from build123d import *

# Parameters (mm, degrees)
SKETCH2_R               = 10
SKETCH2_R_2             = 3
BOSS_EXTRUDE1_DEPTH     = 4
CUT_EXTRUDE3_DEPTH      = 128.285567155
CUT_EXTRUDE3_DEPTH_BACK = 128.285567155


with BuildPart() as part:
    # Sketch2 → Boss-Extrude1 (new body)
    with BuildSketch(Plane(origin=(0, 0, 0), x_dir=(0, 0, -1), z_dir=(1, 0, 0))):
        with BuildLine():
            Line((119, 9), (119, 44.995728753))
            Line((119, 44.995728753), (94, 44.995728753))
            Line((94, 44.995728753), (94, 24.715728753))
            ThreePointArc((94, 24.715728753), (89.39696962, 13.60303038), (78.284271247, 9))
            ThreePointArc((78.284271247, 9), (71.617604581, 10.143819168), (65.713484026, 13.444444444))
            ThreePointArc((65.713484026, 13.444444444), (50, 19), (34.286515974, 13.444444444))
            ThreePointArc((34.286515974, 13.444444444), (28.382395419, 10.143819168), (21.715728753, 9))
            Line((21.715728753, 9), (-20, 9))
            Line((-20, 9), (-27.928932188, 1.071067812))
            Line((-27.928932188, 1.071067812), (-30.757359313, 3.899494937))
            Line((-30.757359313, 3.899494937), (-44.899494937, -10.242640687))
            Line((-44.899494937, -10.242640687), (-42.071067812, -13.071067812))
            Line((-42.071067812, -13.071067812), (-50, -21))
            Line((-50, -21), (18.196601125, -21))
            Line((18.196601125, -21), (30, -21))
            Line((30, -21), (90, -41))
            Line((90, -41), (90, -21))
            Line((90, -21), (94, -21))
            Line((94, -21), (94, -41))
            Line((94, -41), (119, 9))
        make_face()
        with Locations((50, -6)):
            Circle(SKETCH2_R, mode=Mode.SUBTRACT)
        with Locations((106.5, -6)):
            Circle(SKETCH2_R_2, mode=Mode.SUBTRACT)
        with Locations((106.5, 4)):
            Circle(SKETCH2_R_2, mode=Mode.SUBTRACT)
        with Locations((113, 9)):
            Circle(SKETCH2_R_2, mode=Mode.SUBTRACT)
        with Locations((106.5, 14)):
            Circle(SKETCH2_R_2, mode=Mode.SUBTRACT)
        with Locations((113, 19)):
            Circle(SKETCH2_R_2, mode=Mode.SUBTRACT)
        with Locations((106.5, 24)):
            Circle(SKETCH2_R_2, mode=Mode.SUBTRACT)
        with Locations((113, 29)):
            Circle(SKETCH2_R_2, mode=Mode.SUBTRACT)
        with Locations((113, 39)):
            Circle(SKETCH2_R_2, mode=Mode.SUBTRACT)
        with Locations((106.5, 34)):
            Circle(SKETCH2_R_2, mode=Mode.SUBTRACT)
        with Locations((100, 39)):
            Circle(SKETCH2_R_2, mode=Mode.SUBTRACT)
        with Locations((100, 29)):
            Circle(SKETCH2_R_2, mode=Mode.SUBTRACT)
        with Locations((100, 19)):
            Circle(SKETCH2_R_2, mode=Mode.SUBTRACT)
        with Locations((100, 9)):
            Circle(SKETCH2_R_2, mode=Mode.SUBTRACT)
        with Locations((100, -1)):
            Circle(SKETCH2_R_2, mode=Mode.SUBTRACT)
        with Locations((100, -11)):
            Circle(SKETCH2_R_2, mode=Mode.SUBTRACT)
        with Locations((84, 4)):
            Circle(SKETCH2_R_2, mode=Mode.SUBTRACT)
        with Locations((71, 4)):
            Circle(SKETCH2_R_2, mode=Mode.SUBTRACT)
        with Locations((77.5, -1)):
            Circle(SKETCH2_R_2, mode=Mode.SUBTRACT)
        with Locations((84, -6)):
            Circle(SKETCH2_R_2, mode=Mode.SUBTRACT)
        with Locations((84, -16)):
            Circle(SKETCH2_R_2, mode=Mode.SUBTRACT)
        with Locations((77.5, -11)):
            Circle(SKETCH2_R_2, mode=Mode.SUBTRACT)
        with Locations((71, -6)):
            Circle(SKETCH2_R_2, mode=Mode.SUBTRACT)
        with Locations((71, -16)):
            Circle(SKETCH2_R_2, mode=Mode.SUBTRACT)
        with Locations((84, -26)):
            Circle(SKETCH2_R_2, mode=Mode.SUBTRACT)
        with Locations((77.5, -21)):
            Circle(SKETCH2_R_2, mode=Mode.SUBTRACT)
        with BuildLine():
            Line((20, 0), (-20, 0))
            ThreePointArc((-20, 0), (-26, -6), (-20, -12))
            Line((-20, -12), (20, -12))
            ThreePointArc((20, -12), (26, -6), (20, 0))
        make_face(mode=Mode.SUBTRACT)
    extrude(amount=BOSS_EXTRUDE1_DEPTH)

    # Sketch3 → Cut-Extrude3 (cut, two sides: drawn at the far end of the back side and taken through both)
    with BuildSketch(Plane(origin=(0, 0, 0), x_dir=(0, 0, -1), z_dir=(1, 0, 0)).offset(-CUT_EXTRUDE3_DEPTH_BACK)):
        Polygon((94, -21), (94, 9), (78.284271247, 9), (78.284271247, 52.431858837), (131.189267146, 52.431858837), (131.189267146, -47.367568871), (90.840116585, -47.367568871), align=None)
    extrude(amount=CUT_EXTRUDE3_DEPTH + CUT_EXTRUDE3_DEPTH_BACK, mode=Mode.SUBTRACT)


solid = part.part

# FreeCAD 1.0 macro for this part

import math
import FreeCAD as App
import Part
import Sketcher
from FreeCAD import Vector
Q = App.Units.Quantity


def add_polygon(sketch, points):
    """Adds a closed chain of lines whose ends are joined by coincident constraints."""
    first, n = sketch.GeometryCount, len(points)
    for a, b in zip(points, points[1:] + points[:1]):
        sketch.addGeometry(Part.LineSegment(App.Vector(*a, 0), App.Vector(*b, 0)), False)
    for i in range(n):
        sketch.addConstraint(Sketcher.Constraint("Coincident", first + i, 2, first + (i + 1) % n, 1))

doc = App.newDocument("Part")
params = doc.addObject("Spreadsheet::Sheet", "Params")
for row, (alias, value) in enumerate([
    ("sketch1_diameter", "6 mm"),
    ("sketch1_diameter2", "20 mm"),
    ("sketch1_radius", "20 mm"),
    ("sketch1_radius2", "25 mm"),
    ("sketch1_radius3", "6 mm"),
    ("pad1_length", "4 mm"),
    ("sketch2_width", "30 mm"),
], start=1):
    params.set(f"A{row}", alias)
    params.set(f"B{row}", "=" + value)
    params.setAlias(f"B{row}", alias)

body = doc.addObject("PartDesign::Body", "Body")

# Sketch on YZ plane
sketch1 = doc.addObject("Sketcher::SketchObject", "Sketch")
body.addObject(sketch1)
sketch1.AttachmentSupport = (doc.YZ_Plane, [""])
sketch1.MapMode = "FlatFace"
sketch1.addGeometry(Part.LineSegment(Vector(9, -119, 0), Vector(44.995729, -119, 0)), False)
sketch1.addGeometry(Part.LineSegment(Vector(44.995729, -119, 0), Vector(44.995729, -94, 0)), False)
sketch1.addGeometry(Part.LineSegment(Vector(44.995729, -94, 0), Vector(24.715729, -94, 0)), False)
sketch1.addGeometry(Part.ArcOfCircle(Part.Circle(Vector(24.715729, -78.284271, 0), Vector(0, 0, 1), 15.715729), math.radians(180), math.radians(270)), False)
sketch1.addGeometry(Part.ArcOfCircle(Part.Circle(Vector(29, -78.284271, 0), Vector(0, 0, 1), 20), math.radians(141.057559), math.radians(180)), False)
sketch1.addGeometry(Part.ArcOfCircle(Part.Circle(Vector(-6, -50, 0), Vector(0, 0, 1), 25), math.radians(-38.942441), math.radians(38.942441)), False)
sketch1.addGeometry(Part.ArcOfCircle(Part.Circle(Vector(29, -21.715729, 0), Vector(0, 0, 1), 20), math.radians(180), math.radians(218.942441)), False)
sketch1.addGeometry(Part.LineSegment(Vector(9, -21.715729, 0), Vector(9, 20, 0)), False)
sketch1.addGeometry(Part.LineSegment(Vector(9, 20, 0), Vector(1.071068, 27.928932, 0)), False)
sketch1.addGeometry(Part.LineSegment(Vector(1.071068, 27.928932, 0), Vector(3.899495, 30.757359, 0)), False)
sketch1.addGeometry(Part.LineSegment(Vector(3.899495, 30.757359, 0), Vector(-10.242641, 44.899495, 0)), False)
sketch1.addGeometry(Part.LineSegment(Vector(-10.242641, 44.899495, 0), Vector(-13.071068, 42.071068, 0)), False)
sketch1.addGeometry(Part.LineSegment(Vector(-13.071068, 42.071068, 0), Vector(-21, 50, 0)), False)
sketch1.addGeometry(Part.LineSegment(Vector(-21, 50, 0), Vector(-21, -30, 0)), False)
sketch1.addGeometry(Part.LineSegment(Vector(-21, -30, 0), Vector(-41, -90, 0)), False)
sketch1.addGeometry(Part.LineSegment(Vector(-41, -90, 0), Vector(-21, -90, 0)), False)
sketch1.addGeometry(Part.LineSegment(Vector(-21, -90, 0), Vector(-21, -94, 0)), False)
sketch1.addGeometry(Part.LineSegment(Vector(-21, -94, 0), Vector(-41, -94, 0)), False)
sketch1.addGeometry(Part.LineSegment(Vector(-41, -94, 0), Vector(9, -119, 0)), False)
sketch1.addGeometry(Part.LineSegment(Vector(0, 20, 0), Vector(0, -20, 0)), False)
sketch1.addGeometry(Part.ArcOfCircle(Part.Circle(Vector(-6, -20, 0), Vector(0, 0, 1), 6), math.radians(180), math.radians(360)), False)
sketch1.addGeometry(Part.LineSegment(Vector(-12, -20, 0), Vector(-12, 20, 0)), False)
sketch1.addGeometry(Part.ArcOfCircle(Part.Circle(Vector(-6, 20, 0), Vector(0, 0, 1), 6), math.radians(0), math.radians(180)), False)
sketch1.addGeometry(Part.Circle(Vector(-21, -77.5, 0), Vector(0, 0, 1), 3), False)
sketch1.addGeometry(Part.Circle(Vector(-16, -71, 0), Vector(0, 0, 1), 3), False)
sketch1.addGeometry(Part.Circle(Vector(-26, -84, 0), Vector(0, 0, 1), 3), False)
sketch1.addGeometry(Part.Circle(Vector(-16, -84, 0), Vector(0, 0, 1), 3), False)
sketch1.addGeometry(Part.Circle(Vector(-6, -50, 0), Vector(0, 0, 1), 10), False)
sketch1.addGeometry(Part.Circle(Vector(-11, -77.5, 0), Vector(0, 0, 1), 3), False)
sketch1.addGeometry(Part.Circle(Vector(-6, -71, 0), Vector(0, 0, 1), 3), False)
sketch1.addGeometry(Part.Circle(Vector(-1, -77.5, 0), Vector(0, 0, 1), 3), False)
sketch1.addGeometry(Part.Circle(Vector(4, -71, 0), Vector(0, 0, 1), 3), False)
sketch1.addGeometry(Part.Circle(Vector(-6, -84, 0), Vector(0, 0, 1), 3), False)
sketch1.addGeometry(Part.Circle(Vector(-11, -100, 0), Vector(0, 0, 1), 3), False)
sketch1.addGeometry(Part.Circle(Vector(-6, -106.5, 0), Vector(0, 0, 1), 3), False)
sketch1.addGeometry(Part.Circle(Vector(4, -84, 0), Vector(0, 0, 1), 3), False)
sketch1.addGeometry(Part.Circle(Vector(-1, -100, 0), Vector(0, 0, 1), 3), False)
sketch1.addGeometry(Part.Circle(Vector(4, -106.5, 0), Vector(0, 0, 1), 3), False)
sketch1.addGeometry(Part.Circle(Vector(9, -100, 0), Vector(0, 0, 1), 3), False)
sketch1.addGeometry(Part.Circle(Vector(9, -113, 0), Vector(0, 0, 1), 3), False)
sketch1.addGeometry(Part.Circle(Vector(14, -106.5, 0), Vector(0, 0, 1), 3), False)
sketch1.addGeometry(Part.Circle(Vector(19, -100, 0), Vector(0, 0, 1), 3), False)
sketch1.addGeometry(Part.Circle(Vector(19, -113, 0), Vector(0, 0, 1), 3), False)
sketch1.addGeometry(Part.Circle(Vector(24, -106.5, 0), Vector(0, 0, 1), 3), False)
sketch1.addGeometry(Part.Circle(Vector(29, -100, 0), Vector(0, 0, 1), 3), False)
sketch1.addGeometry(Part.Circle(Vector(29, -113, 0), Vector(0, 0, 1), 3), False)
sketch1.addGeometry(Part.Circle(Vector(34, -106.5, 0), Vector(0, 0, 1), 3), False)
sketch1.addGeometry(Part.Circle(Vector(39, -100, 0), Vector(0, 0, 1), 3), False)
sketch1.addGeometry(Part.Circle(Vector(39, -113, 0), Vector(0, 0, 1), 3), False)
sketch1.addConstraint(Sketcher.Constraint("Coincident", 0, 2, 1, 1))
sketch1.addConstraint(Sketcher.Constraint("Coincident", 1, 2, 2, 1))
sketch1.addConstraint(Sketcher.Constraint("Tangent", 2, 2, 3, 2))
sketch1.addConstraint(Sketcher.Constraint("Tangent", 3, 1, 4, 2))
sketch1.addConstraint(Sketcher.Constraint("Tangent", 4, 1, 5, 1))
sketch1.addConstraint(Sketcher.Constraint("Tangent", 5, 2, 6, 2))
sketch1.addConstraint(Sketcher.Constraint("Tangent", 6, 1, 7, 1))
sketch1.addConstraint(Sketcher.Constraint("Coincident", 7, 2, 8, 1))
sketch1.addConstraint(Sketcher.Constraint("Coincident", 8, 2, 9, 1))
sketch1.addConstraint(Sketcher.Constraint("Coincident", 9, 2, 10, 1))
sketch1.addConstraint(Sketcher.Constraint("Coincident", 10, 2, 11, 1))
sketch1.addConstraint(Sketcher.Constraint("Coincident", 11, 2, 12, 1))
sketch1.addConstraint(Sketcher.Constraint("Coincident", 12, 2, 13, 1))
sketch1.addConstraint(Sketcher.Constraint("Coincident", 13, 2, 14, 1))
sketch1.addConstraint(Sketcher.Constraint("Coincident", 14, 2, 15, 1))
sketch1.addConstraint(Sketcher.Constraint("Coincident", 15, 2, 16, 1))
sketch1.addConstraint(Sketcher.Constraint("Coincident", 16, 2, 17, 1))
sketch1.addConstraint(Sketcher.Constraint("Coincident", 17, 2, 18, 1))
sketch1.addConstraint(Sketcher.Constraint("Coincident", 18, 2, 0, 1))
sketch1.addConstraint(Sketcher.Constraint("Tangent", 19, 2, 20, 2))
sketch1.addConstraint(Sketcher.Constraint("Tangent", 20, 1, 21, 1))
sketch1.addConstraint(Sketcher.Constraint("Tangent", 21, 2, 22, 2))
sketch1.addConstraint(Sketcher.Constraint("Tangent", 22, 1, 19, 1))
sketch1.addConstraint(Sketcher.Constraint("Horizontal", 0))
sketch1.addConstraint(Sketcher.Constraint("Vertical", 1))
sketch1.addConstraint(Sketcher.Constraint("Horizontal", 2))
sketch1.addConstraint(Sketcher.Constraint("Vertical", 7))
sketch1.addConstraint(Sketcher.Constraint("Vertical", 13))
sketch1.addConstraint(Sketcher.Constraint("Horizontal", 15))
sketch1.addConstraint(Sketcher.Constraint("Vertical", 16))
sketch1.addConstraint(Sketcher.Constraint("Horizontal", 17))
sketch1.addConstraint(Sketcher.Constraint("Vertical", 19))
sketch1.addConstraint(Sketcher.Constraint("Vertical", 21))
sketch1.addConstraint(Sketcher.Constraint("Coincident", 27, 3, 5, 3))
sketch1.addConstraint(Sketcher.Constraint("Equal", 4, 6))
sketch1.addConstraint(Sketcher.Constraint("Equal", 23, 24))
sketch1.addConstraint(Sketcher.Constraint("Equal", 24, 25))
sketch1.addConstraint(Sketcher.Constraint("Equal", 25, 26))
sketch1.addConstraint(Sketcher.Constraint("Equal", 26, 28))
sketch1.addConstraint(Sketcher.Constraint("Equal", 28, 29))
sketch1.addConstraint(Sketcher.Constraint("Equal", 29, 30))
sketch1.addConstraint(Sketcher.Constraint("Equal", 30, 31))
sketch1.addConstraint(Sketcher.Constraint("Equal", 31, 32))
sketch1.addConstraint(Sketcher.Constraint("Equal", 32, 33))
sketch1.addConstraint(Sketcher.Constraint("Equal", 33, 34))
sketch1.addConstraint(Sketcher.Constraint("Equal", 34, 35))
sketch1.addConstraint(Sketcher.Constraint("Equal", 35, 36))
sketch1.addConstraint(Sketcher.Constraint("Equal", 36, 37))
sketch1.addConstraint(Sketcher.Constraint("Equal", 37, 38))
sketch1.addConstraint(Sketcher.Constraint("Equal", 38, 39))
sketch1.addConstraint(Sketcher.Constraint("Equal", 39, 40))
sketch1.addConstraint(Sketcher.Constraint("Equal", 40, 41))
sketch1.addConstraint(Sketcher.Constraint("Equal", 41, 42))
sketch1.addConstraint(Sketcher.Constraint("Equal", 42, 43))
sketch1.addConstraint(Sketcher.Constraint("Equal", 43, 44))
sketch1.addConstraint(Sketcher.Constraint("Equal", 44, 45))
sketch1.addConstraint(Sketcher.Constraint("Equal", 45, 46))
sketch1.addConstraint(Sketcher.Constraint("Equal", 46, 47))
sketch1.addConstraint(Sketcher.Constraint("Equal", 47, 48))
sketch1.addConstraint(Sketcher.Constraint("Symmetric", 19, 2, 22, 1, -1, 1))
sketch1.addConstraint(Sketcher.Constraint("Perpendicular", 8, 9))
sketch1.addConstraint(Sketcher.Constraint("Perpendicular", 9, 10))
sketch1.addConstraint(Sketcher.Constraint("Perpendicular", 10, 11))
sketch1.addConstraint(Sketcher.Constraint("Perpendicular", 11, 12))
sketch1.addConstraint(Sketcher.Constraint("Horizontal", 3, 3, 4, 3))
sketch1.addConstraint(Sketcher.Constraint("Horizontal", 25, 3, 26, 3))
sketch1.addConstraint(Sketcher.Constraint("Horizontal", 23, 3, 28, 3))
sketch1.addConstraint(Sketcher.Constraint("Horizontal", 24, 3, 29, 3))
sketch1.addConstraint(Sketcher.Constraint("Horizontal", 28, 3, 30, 3))
sketch1.addConstraint(Sketcher.Constraint("Horizontal", 29, 3, 31, 3))
sketch1.addConstraint(Sketcher.Constraint("Horizontal", 26, 3, 32, 3))
sketch1.addConstraint(Sketcher.Constraint("Horizontal", 32, 3, 35, 3))
sketch1.addConstraint(Sketcher.Constraint("Horizontal", 33, 3, 36, 3))
sketch1.addConstraint(Sketcher.Constraint("Horizontal", 34, 3, 37, 3))
sketch1.addConstraint(Sketcher.Constraint("Horizontal", 36, 3, 38, 3))
sketch1.addConstraint(Sketcher.Constraint("Horizontal", 37, 3, 40, 3))
sketch1.addConstraint(Sketcher.Constraint("Horizontal", 38, 3, 41, 3))
sketch1.addConstraint(Sketcher.Constraint("Horizontal", 39, 3, 42, 3))
sketch1.addConstraint(Sketcher.Constraint("Horizontal", 40, 3, 43, 3))
sketch1.addConstraint(Sketcher.Constraint("Horizontal", 41, 3, 44, 3))
sketch1.addConstraint(Sketcher.Constraint("Horizontal", 42, 3, 45, 3))
sketch1.addConstraint(Sketcher.Constraint("Horizontal", 43, 3, 46, 3))
sketch1.addConstraint(Sketcher.Constraint("Horizontal", 44, 3, 47, 3))
sketch1.addConstraint(Sketcher.Constraint("Horizontal", 45, 3, 48, 3))
sketch1.addConstraint(Sketcher.Constraint("Horizontal", 22, 3, 7, 2))
sketch1.addConstraint(Sketcher.Constraint("Horizontal", 2, 2, 16, 2))
sketch1.addConstraint(Sketcher.Constraint("Vertical", 4, 3, 6, 3))
sketch1.addConstraint(Sketcher.Constraint("Vertical", 5, 3, 20, 3))
sketch1.addConstraint(Sketcher.Constraint("Vertical", 24, 3, 26, 3))
sketch1.addConstraint(Sketcher.Constraint("Vertical", 27, 3, 29, 3))
sketch1.addConstraint(Sketcher.Constraint("Vertical", 29, 3, 32, 3))
sketch1.addConstraint(Sketcher.Constraint("Vertical", 28, 3, 33, 3))
sketch1.addConstraint(Sketcher.Constraint("Vertical", 32, 3, 34, 3))
sketch1.addConstraint(Sketcher.Constraint("Vertical", 31, 3, 35, 3))
sketch1.addConstraint(Sketcher.Constraint("Vertical", 30, 3, 36, 3))
sketch1.addConstraint(Sketcher.Constraint("Vertical", 35, 3, 37, 3))
sketch1.addConstraint(Sketcher.Constraint("Vertical", 38, 3, 39, 3))
sketch1.addConstraint(Sketcher.Constraint("Vertical", 41, 3, 42, 3))
sketch1.addConstraint(Sketcher.Constraint("Vertical", 6, 3, 44, 3))
sketch1.addConstraint(Sketcher.Constraint("Vertical", 44, 3, 45, 3))
sketch1.addConstraint(Sketcher.Constraint("Vertical", 47, 3, 48, 3))
sketch1.addConstraint(Sketcher.Constraint("Vertical", 39, 3, 3, 1))
sketch1.addConstraint(Sketcher.Constraint("Vertical", 23, 3, 12, 2))
sketch1.addConstraint(Sketcher.Constraint("Vertical", 13, 2, 15, 2))
sketch1.addConstraint(Sketcher.Constraint("Vertical", 14, 2, 17, 2))
sketch1.addConstraint(Sketcher.Constraint("Vertical", 7, 2, 18, 2))
sketch1.addConstraint(Sketcher.Constraint("Equal", 9, 11))
sketch1.addConstraint(Sketcher.Constraint("Equal", 8, 12))
sketch1.addConstraint(Sketcher.Constraint("Diameter", 23, 6.0))
sketch1.addConstraint(Sketcher.Constraint("Diameter", 27, 20.0))
sketch1.addConstraint(Sketcher.Constraint("Radius", 4, 20.0))
sketch1.addConstraint(Sketcher.Constraint("Radius", 5, 25.0))
sketch1.addConstraint(Sketcher.Constraint("Radius", 20, 6.0))
sketch1.addConstraint(Sketcher.Constraint("DistanceX", 15, 1, 15, 2, 20.0))
sketch1.addConstraint(Sketcher.Constraint("DistanceY", 1, 1, 1, 2, 25.0))
sketch1.addConstraint(Sketcher.Constraint("DistanceY", 13, 2, 13, 1, 80.0))
sketch1.addConstraint(Sketcher.Constraint("DistanceY", 16, 2, 16, 1, 4.0))
sketch1.addConstraint(Sketcher.Constraint("DistanceY", 19, 2, 19, 1, 40.0))
sketch1.addConstraint(Sketcher.Constraint("Angle", 8, Q("135 deg")))
sketch1.addConstraint(Sketcher.Constraint("Distance", 9, 4.0))
sketch1.addConstraint(Sketcher.Constraint("Distance", 10, 20.0))
sketch1.addConstraint(Sketcher.Constraint("DistanceX", -1, 1, 4, 3, 29.0))
sketch1.addConstraint(Sketcher.Constraint("DistanceY", 5, 3, -1, 1, 50.0))
sketch1.addConstraint(Sketcher.Constraint("DistanceX", 23, 3, -1, 1, 21.0))
sketch1.addConstraint(Sketcher.Constraint("DistanceX", 24, 3, -1, 1, 16.0))
sketch1.addConstraint(Sketcher.Constraint("DistanceY", 24, 3, -1, 1, 71.0))
sketch1.addConstraint(Sketcher.Constraint("DistanceX", 25, 3, -1, 1, 26.0))
sketch1.addConstraint(Sketcher.Constraint("DistanceY", 25, 3, -1, 1, 84.0))
sketch1.addConstraint(Sketcher.Constraint("DistanceX", 28, 3, -1, 1, 11.0))
sketch1.addConstraint(Sketcher.Constraint("DistanceX", 30, 3, -1, 1, 1.0))
sketch1.addConstraint(Sketcher.Constraint("DistanceX", -1, 1, 31, 3, 4.0))
sketch1.addConstraint(Sketcher.Constraint("DistanceY", 33, 3, -1, 1, 100.0))
sketch1.addConstraint(Sketcher.Constraint("DistanceY", 39, 3, -1, 1, 113.0))
sketch1.addConstraint(Sketcher.Constraint("DistanceX", -1, 1, 40, 3, 14.0))
sketch1.addConstraint(Sketcher.Constraint("DistanceX", -1, 1, 41, 3, 19.0))
sketch1.addConstraint(Sketcher.Constraint("DistanceX", -1, 1, 43, 3, 24.0))
sketch1.addConstraint(Sketcher.Constraint("DistanceX", -1, 1, 46, 3, 34.0))
sketch1.addConstraint(Sketcher.Constraint("DistanceX", -1, 1, 47, 3, 39.0))
sketch1.addConstraint(Sketcher.Constraint("DistanceY", 0, 2, -1, 1, 119.0))
sketch1.addConstraint(Sketcher.Constraint("DistanceY", 34, 3, 28, 3, 29.0))
sketch1.addConstraint(Sketcher.Constraint("DistanceX", 2, 2, 2, 1, 20.28))
sketch1.addConstraint(Sketcher.Constraint("DistanceY", 23, 3, -1, 1, 77.5))
sketch1.setExpression("Constraints[108]", "Params.sketch1_diameter")
sketch1.setExpression("Constraints[109]", "Params.sketch1_diameter2")
sketch1.setExpression("Constraints[110]", "Params.sketch1_radius")
sketch1.setExpression("Constraints[111]", "Params.sketch1_radius2")
sketch1.setExpression("Constraints[112]", "Params.sketch1_radius3")
pad1 = doc.addObject("PartDesign::Pad", "Pad")
body.addObject(pad1)
pad1.Profile = sketch1
pad1.setExpression("Length", "Params.pad1_length")

# Sketch on YZ plane
sketch2 = doc.addObject("Sketcher::SketchObject", "Sketch001")
body.addObject(sketch2)
sketch2.AttachmentSupport = (doc.YZ_Plane, [""])
sketch2.MapMode = "FlatFace"
add_polygon(sketch2, [(9, -94), (-21, -94), (-47.367569, -90.840117), (-47.367569, -131.189267), (52.431859, -131.189267), (52.431859, -78.284271), (9, -78.284271)])  # lines 0-6
sketch2.addConstraint(Sketcher.Constraint("Horizontal", 0))
sketch2.addConstraint(Sketcher.Constraint("Vertical", 2))
sketch2.addConstraint(Sketcher.Constraint("Horizontal", 3))
sketch2.addConstraint(Sketcher.Constraint("Vertical", 4))
sketch2.addConstraint(Sketcher.Constraint("Horizontal", 5))
sketch2.addConstraint(Sketcher.Constraint("Vertical", 6))
sketch2.addConstraint(Sketcher.Constraint("DistanceX", 0, 2, 0, 1, 30.0))
sketch2.addConstraint(Sketcher.Constraint("DistanceX", 0, 2, -1, 1, 21.0))
sketch2.addConstraint(Sketcher.Constraint("DistanceY", 0, 2, -1, 1, 94.0))
sketch2.addConstraint(Sketcher.Constraint("DistanceX", 5, 2, 5, 1, 43.431859))
sketch2.addConstraint(Sketcher.Constraint("DistanceY", 2, 2, 2, 1, 40.349151))
sketch2.addConstraint(Sketcher.Constraint("DistanceY", 6, 2, 6, 1, 15.715729))
sketch2.addConstraint(Sketcher.Constraint("DistanceX", 3, 1, 3, 2, 99.799428))
sketch2.addConstraint(Sketcher.Constraint("DistanceY", 4, 1, 4, 2, 52.904996))
sketch2.setExpression("Constraints[13]", "Params.sketch2_width")
pocket1 = doc.addObject("PartDesign::Pocket", "Pocket")
body.addObject(pocket1)
pocket1.Profile = sketch2
pocket1.Type = "ThroughAll"
pocket1.Midplane = True

doc.recompute()
